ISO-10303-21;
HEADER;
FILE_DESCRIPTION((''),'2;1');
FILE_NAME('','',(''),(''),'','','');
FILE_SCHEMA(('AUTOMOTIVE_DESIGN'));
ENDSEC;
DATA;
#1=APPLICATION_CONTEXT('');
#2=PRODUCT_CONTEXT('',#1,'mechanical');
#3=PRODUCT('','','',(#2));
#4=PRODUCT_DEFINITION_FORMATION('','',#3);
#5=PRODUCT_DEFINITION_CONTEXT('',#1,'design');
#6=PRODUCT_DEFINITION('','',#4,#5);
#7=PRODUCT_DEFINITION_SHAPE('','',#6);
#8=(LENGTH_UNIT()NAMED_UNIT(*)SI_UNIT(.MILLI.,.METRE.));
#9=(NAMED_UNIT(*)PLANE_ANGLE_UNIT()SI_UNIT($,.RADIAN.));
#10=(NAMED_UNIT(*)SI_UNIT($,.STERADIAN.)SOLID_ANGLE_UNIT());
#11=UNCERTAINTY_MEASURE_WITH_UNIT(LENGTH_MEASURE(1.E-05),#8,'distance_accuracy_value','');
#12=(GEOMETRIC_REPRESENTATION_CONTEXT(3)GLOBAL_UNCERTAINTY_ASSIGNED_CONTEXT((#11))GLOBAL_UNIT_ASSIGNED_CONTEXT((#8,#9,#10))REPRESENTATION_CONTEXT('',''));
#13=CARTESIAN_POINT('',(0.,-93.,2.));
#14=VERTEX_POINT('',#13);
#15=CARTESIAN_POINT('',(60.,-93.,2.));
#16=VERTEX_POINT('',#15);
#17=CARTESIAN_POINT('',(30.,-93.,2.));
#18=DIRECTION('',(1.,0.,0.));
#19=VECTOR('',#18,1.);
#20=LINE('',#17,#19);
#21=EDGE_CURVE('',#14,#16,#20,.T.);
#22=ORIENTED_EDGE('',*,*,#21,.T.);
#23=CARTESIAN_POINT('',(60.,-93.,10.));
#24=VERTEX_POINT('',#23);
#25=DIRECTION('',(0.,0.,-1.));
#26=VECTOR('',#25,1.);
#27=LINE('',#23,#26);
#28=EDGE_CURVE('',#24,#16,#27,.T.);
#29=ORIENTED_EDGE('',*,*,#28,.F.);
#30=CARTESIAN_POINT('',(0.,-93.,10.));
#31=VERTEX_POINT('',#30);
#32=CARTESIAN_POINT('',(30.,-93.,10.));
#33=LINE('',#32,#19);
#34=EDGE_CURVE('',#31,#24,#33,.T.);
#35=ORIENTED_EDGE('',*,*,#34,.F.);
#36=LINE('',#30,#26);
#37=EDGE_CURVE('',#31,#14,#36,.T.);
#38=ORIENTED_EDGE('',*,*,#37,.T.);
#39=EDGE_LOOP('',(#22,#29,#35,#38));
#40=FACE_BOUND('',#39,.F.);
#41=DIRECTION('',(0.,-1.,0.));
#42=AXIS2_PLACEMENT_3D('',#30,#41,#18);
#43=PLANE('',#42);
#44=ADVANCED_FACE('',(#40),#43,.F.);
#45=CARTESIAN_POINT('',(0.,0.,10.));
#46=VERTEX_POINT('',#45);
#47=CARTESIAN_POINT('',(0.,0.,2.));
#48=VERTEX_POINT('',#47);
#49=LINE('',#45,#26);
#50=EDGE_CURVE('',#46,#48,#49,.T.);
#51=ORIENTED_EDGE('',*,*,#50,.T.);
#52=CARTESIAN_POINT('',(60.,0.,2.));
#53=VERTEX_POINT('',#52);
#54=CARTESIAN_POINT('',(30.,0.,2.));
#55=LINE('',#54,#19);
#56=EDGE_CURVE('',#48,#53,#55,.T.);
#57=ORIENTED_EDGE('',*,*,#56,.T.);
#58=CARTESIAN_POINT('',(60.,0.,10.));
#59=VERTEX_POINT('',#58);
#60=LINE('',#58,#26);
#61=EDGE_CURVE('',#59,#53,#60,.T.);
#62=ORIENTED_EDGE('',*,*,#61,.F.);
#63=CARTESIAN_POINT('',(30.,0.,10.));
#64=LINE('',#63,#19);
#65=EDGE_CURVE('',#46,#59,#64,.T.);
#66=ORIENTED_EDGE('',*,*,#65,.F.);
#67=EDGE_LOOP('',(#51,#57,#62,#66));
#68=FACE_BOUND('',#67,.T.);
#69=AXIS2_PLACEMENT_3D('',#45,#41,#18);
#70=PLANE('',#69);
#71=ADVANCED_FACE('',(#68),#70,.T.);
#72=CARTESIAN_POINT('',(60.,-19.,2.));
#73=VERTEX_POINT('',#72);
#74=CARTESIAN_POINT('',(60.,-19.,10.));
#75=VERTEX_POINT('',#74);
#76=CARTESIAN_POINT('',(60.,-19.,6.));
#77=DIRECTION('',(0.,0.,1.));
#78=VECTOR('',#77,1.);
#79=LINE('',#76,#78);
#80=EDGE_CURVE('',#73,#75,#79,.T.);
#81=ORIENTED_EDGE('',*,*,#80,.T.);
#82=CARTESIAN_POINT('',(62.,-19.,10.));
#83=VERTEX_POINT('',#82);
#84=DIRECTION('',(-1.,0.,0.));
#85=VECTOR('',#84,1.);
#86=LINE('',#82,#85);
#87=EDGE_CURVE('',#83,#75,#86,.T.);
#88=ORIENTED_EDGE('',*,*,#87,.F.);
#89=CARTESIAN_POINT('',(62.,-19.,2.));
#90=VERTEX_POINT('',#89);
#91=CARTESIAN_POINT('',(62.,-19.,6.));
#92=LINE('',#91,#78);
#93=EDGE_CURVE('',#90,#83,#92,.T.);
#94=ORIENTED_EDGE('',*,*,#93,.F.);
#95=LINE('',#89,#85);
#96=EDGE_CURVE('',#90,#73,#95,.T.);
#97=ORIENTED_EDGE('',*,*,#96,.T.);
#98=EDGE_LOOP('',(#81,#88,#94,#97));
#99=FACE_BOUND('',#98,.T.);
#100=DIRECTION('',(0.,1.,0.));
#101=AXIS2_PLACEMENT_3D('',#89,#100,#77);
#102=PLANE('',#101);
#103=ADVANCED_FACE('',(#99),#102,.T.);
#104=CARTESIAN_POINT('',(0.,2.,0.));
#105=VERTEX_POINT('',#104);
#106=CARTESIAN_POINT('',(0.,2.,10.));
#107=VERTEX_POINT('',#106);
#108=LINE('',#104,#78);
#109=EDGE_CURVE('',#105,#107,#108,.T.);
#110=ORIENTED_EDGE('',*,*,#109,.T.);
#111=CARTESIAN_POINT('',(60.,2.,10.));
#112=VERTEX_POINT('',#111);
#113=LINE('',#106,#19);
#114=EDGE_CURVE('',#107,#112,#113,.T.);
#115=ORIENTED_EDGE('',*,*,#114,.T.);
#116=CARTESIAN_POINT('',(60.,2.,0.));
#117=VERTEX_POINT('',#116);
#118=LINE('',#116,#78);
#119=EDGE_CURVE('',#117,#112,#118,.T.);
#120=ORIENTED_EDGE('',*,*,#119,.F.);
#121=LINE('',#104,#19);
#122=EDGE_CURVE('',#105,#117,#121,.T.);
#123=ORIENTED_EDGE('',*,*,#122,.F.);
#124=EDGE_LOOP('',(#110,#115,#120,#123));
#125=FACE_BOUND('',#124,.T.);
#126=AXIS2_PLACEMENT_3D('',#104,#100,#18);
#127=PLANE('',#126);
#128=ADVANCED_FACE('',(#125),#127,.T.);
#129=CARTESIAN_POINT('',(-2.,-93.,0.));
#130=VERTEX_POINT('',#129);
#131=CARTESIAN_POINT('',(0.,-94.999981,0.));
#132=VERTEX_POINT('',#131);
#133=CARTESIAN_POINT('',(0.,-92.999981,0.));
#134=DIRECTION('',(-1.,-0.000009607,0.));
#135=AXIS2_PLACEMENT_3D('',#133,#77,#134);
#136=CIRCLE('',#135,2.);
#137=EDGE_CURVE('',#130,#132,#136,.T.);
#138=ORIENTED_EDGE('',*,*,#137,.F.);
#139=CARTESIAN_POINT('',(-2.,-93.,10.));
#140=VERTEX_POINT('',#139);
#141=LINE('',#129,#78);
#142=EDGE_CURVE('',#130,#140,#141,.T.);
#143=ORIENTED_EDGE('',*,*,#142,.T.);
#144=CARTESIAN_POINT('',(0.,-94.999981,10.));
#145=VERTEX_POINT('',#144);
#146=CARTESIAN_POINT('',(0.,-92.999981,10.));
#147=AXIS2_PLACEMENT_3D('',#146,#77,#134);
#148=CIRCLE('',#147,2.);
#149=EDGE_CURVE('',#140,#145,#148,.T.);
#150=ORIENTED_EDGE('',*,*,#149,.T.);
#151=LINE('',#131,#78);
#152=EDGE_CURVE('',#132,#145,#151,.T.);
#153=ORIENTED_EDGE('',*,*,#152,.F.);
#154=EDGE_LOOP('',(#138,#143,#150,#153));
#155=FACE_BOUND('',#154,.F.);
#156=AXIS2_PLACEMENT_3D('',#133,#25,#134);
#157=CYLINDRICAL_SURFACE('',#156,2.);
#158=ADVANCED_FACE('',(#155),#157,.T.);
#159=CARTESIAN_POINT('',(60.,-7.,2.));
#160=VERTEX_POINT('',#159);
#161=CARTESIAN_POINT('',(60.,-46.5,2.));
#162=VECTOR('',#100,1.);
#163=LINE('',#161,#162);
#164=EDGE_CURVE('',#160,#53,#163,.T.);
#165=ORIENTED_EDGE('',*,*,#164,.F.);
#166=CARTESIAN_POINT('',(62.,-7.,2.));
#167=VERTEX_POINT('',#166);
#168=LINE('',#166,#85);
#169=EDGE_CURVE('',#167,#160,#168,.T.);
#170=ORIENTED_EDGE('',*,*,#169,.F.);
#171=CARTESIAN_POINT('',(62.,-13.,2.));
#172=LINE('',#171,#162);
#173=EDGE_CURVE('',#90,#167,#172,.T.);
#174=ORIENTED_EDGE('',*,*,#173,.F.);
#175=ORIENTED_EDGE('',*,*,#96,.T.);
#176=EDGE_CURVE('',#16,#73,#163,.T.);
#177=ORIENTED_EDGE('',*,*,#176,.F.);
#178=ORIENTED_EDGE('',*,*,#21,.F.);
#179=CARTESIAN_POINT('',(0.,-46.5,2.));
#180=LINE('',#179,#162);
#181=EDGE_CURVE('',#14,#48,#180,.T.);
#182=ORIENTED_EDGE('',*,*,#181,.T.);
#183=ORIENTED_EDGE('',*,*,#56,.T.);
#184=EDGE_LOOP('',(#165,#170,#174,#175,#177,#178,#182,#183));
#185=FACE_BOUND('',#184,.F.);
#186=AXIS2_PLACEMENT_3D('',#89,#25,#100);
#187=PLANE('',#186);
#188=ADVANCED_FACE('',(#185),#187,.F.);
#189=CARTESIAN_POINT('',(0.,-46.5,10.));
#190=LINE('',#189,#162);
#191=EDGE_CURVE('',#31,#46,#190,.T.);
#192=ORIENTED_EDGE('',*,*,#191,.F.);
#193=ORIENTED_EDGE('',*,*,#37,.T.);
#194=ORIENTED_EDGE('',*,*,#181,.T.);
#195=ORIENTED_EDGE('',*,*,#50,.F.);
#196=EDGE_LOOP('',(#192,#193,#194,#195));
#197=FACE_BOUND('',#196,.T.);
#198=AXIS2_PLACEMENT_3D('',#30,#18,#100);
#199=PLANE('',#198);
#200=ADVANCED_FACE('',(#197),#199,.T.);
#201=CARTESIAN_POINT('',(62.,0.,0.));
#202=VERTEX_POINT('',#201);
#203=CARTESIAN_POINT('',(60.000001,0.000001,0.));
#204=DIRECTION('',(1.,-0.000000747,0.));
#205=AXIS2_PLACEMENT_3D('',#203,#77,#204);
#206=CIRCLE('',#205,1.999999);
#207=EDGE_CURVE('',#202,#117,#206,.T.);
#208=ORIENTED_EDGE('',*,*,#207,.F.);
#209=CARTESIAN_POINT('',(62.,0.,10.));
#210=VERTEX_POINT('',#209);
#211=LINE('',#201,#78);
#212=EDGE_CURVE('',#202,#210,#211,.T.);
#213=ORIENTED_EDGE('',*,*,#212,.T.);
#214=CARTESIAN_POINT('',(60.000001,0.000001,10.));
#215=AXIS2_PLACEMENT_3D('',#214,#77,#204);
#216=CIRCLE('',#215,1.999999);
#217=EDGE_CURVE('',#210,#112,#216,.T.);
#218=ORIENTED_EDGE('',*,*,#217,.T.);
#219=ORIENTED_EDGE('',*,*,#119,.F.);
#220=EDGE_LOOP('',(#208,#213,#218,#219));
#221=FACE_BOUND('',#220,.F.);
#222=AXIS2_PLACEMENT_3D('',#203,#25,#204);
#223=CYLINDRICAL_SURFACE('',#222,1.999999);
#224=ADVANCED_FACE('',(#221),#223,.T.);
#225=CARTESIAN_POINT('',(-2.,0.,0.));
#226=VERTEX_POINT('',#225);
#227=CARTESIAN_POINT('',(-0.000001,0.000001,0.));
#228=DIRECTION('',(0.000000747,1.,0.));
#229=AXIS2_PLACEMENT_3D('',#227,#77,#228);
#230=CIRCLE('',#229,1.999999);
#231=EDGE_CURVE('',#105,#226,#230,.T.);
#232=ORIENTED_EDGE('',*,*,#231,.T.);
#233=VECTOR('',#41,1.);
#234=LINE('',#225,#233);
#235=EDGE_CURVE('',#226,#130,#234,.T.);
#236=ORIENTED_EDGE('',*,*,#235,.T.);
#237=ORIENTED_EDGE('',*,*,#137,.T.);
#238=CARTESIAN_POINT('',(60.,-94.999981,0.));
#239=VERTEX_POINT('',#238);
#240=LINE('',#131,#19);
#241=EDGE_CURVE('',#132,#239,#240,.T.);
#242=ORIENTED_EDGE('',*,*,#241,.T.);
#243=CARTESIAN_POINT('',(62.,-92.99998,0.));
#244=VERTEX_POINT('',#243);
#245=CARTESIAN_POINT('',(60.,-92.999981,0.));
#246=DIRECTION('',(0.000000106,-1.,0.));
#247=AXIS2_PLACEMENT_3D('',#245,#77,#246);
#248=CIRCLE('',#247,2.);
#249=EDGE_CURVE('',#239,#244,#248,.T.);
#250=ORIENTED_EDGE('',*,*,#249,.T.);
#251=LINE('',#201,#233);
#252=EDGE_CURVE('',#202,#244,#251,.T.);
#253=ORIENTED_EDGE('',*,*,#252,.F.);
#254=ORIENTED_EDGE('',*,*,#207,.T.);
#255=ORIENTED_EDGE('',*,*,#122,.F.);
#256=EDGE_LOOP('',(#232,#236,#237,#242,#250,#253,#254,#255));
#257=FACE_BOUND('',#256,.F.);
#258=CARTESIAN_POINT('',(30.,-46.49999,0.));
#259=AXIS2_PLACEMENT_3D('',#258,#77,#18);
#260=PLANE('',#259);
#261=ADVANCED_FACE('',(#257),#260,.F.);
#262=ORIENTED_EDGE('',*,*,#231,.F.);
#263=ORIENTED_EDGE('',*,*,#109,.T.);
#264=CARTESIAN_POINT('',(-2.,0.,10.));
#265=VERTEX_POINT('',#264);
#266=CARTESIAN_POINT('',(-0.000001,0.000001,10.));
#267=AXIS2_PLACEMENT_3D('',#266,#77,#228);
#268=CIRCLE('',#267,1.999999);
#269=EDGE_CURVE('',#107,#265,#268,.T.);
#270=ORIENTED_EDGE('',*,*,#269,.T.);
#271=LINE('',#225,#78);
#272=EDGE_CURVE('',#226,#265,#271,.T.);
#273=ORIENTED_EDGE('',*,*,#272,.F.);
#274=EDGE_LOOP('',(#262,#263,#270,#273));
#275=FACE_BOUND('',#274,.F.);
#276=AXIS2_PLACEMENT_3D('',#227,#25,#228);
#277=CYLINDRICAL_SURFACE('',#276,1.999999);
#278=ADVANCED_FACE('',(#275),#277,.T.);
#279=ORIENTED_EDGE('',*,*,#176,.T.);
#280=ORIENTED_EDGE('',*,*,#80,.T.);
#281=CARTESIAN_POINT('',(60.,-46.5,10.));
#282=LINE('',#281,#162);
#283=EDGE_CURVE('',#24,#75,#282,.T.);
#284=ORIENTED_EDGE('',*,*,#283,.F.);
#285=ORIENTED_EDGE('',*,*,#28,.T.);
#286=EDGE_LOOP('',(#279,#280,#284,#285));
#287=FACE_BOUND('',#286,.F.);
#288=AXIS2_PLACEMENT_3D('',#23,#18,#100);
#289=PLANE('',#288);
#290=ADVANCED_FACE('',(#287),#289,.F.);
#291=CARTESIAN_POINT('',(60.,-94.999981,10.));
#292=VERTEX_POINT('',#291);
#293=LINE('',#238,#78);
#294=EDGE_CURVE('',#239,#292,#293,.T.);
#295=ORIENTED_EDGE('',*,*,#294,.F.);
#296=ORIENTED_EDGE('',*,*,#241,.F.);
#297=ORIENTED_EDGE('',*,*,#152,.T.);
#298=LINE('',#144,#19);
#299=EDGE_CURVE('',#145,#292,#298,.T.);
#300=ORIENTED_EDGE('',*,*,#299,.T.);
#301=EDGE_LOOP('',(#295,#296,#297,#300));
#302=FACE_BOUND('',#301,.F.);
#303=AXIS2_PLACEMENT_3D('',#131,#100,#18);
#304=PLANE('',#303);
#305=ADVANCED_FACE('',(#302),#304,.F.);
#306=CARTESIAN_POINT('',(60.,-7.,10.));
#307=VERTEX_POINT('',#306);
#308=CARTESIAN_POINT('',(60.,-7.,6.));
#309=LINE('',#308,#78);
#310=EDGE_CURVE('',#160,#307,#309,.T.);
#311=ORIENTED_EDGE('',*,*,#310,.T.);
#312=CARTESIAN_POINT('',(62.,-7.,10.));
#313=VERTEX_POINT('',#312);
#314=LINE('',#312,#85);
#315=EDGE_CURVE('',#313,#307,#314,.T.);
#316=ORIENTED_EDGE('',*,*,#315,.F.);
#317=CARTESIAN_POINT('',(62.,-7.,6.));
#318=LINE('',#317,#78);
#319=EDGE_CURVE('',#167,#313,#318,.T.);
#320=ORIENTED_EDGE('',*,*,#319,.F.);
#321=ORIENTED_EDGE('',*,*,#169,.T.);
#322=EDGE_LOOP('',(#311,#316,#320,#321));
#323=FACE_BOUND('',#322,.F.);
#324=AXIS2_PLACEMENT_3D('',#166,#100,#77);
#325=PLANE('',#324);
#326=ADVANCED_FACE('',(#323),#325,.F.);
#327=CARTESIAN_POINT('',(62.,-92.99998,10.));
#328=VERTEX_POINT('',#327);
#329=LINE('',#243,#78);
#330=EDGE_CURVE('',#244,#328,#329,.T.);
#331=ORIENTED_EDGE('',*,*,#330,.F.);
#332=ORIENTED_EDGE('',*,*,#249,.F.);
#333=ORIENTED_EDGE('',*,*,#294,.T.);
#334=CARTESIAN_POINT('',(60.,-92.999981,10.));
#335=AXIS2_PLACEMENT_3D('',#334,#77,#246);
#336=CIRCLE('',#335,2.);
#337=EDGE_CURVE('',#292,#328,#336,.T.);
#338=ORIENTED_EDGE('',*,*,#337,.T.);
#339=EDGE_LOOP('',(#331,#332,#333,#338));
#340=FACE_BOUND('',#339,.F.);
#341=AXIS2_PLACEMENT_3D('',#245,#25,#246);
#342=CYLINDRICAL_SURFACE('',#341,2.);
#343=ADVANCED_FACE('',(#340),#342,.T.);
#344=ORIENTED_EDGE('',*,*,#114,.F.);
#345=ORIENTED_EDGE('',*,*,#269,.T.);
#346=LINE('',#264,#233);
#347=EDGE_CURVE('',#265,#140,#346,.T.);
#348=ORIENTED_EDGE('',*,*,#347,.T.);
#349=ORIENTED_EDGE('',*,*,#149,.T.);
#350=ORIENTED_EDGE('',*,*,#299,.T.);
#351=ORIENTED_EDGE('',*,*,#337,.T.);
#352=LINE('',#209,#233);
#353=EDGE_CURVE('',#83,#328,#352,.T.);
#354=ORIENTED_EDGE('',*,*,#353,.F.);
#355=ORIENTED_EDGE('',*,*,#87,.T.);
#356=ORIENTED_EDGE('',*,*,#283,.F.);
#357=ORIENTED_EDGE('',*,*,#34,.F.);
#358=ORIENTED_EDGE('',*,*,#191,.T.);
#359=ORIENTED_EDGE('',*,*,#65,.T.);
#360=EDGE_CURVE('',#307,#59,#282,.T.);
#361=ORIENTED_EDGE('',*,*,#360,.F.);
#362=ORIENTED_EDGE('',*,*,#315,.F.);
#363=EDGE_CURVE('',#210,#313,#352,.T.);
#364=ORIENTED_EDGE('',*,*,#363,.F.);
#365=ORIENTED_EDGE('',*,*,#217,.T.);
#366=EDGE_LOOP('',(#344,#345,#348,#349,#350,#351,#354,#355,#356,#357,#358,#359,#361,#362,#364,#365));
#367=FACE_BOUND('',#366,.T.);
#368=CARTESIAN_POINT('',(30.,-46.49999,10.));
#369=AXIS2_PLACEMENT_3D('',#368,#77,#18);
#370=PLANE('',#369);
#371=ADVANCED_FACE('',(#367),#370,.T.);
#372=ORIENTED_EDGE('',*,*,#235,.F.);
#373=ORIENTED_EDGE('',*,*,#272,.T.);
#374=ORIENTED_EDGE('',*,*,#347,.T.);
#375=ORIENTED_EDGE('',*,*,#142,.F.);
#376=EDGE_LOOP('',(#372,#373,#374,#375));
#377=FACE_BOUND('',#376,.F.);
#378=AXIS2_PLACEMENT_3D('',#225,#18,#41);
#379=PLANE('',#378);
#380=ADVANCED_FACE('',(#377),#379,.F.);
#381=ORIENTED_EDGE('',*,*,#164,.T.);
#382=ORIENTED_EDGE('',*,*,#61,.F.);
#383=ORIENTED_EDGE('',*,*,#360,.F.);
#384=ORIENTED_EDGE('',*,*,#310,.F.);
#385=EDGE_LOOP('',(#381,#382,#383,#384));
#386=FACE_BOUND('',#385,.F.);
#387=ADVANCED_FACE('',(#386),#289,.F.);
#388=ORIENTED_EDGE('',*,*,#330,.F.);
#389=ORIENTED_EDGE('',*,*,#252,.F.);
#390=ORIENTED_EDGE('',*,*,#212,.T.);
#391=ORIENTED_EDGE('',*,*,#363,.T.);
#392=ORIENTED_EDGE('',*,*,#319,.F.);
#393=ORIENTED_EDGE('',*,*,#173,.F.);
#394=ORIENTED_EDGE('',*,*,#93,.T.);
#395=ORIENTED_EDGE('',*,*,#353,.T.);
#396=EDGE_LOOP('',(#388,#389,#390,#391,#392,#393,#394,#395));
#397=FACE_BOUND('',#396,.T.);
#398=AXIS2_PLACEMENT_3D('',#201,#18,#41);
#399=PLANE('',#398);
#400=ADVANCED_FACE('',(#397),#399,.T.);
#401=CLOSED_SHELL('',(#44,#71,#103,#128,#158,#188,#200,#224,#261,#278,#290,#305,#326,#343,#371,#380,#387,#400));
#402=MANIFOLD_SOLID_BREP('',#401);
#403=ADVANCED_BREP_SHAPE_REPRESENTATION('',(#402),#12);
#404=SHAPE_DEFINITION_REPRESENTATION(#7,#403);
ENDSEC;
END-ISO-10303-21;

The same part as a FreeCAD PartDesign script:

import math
import FreeCAD as App
import Part
import Sketcher
from FreeCAD import Vector
Q = App.Units.Quantity

doc = App.newDocument("Part")
body = doc.addObject("PartDesign::Body", "Body")

# Sketch on XY plane
sketch1 = body.newObject("Sketcher::SketchObject", "Sketch")
sketch1.AttachmentSupport = (doc.getObject("XY_Plane"), [""])
sketch1.MapMode = "FlatFace"
sketch1.addGeometry(Part.ArcOfCircle(Part.Circle(Vector(0, 0, 0), Vector(0, 0, 1), 2), math.radians(90), math.radians(180)), False)
sketch1.addGeometry(Part.LineSegment(Vector(-2, 0, 0), Vector(-2, -93, 0)), False)
sketch1.addGeometry(Part.ArcOfCircle(Part.Circle(Vector(0, -93, 0), Vector(0, 0, 1), 2), math.radians(-180), math.radians(-90)), False)
sketch1.addGeometry(Part.LineSegment(Vector(0, -95, 0), Vector(60, -95, 0)), False)
sketch1.addGeometry(Part.ArcOfCircle(Part.Circle(Vector(60, -93, 0), Vector(0, 0, 1), 2), math.radians(-90), math.radians(0)), False)
sketch1.addGeometry(Part.LineSegment(Vector(62, -93, 0), Vector(62, 0, 0)), False)
sketch1.addGeometry(Part.ArcOfCircle(Part.Circle(Vector(60, 0, 0), Vector(0, 0, 1), 2), math.radians(0), math.radians(90)), False)
sketch1.addGeometry(Part.LineSegment(Vector(60, 2, 0), Vector(0, 2, 0)), False)
sketch1.addConstraint(Sketcher.Constraint("Tangent", 0, 2, 1, 1))
sketch1.addConstraint(Sketcher.Constraint("Coincident", 1, 2, 2, 1))
sketch1.addConstraint(Sketcher.Constraint("Tangent", 2, 2, 3, 1))
sketch1.addConstraint(Sketcher.Constraint("Tangent", 3, 2, 4, 1))
sketch1.addConstraint(Sketcher.Constraint("Tangent", 4, 2, 5, 1))
sketch1.addConstraint(Sketcher.Constraint("Tangent", 5, 2, 6, 1))
sketch1.addConstraint(Sketcher.Constraint("Tangent", 6, 2, 7, 1))
sketch1.addConstraint(Sketcher.Constraint("Tangent", 7, 2, 0, 1))
sketch1.addConstraint(Sketcher.Constraint("Vertical", 1))
sketch1.addConstraint(Sketcher.Constraint("Horizontal", 3))
sketch1.addConstraint(Sketcher.Constraint("Vertical", 5))
sketch1.addConstraint(Sketcher.Constraint("Horizontal", 7))
sketch1.addConstraint(Sketcher.Constraint("Coincident", 0, 3, -1, 1))
sketch1.addConstraint(Sketcher.Constraint("Equal", 0, 2))
sketch1.addConstraint(Sketcher.Constraint("Equal", 2, 4))
sketch1.addConstraint(Sketcher.Constraint("Equal", 4, 6))
sketch1.addConstraint(Sketcher.Constraint("Radius", 0, Q("1.999999 mm")))
sketch1.addConstraint(Sketcher.Constraint("DistanceX", 3, 1, 3, 2, Q("60 mm")))
sketch1.addConstraint(Sketcher.Constraint("DistanceY", 1, 2, 1, 1, Q("93 mm")))
sketch1.addConstraint(Sketcher.Constraint("DistanceY", 5, 1, 5, 2, Q("92.99998 mm")))
pad1 = body.newObject("PartDesign::Pad", "Pad")
pad1.Profile = sketch1
pad1.Length = 10

# Sketch on XY plane
sketch2 = body.newObject("Sketcher::SketchObject", "Sketch001")
sketch2.AttachmentSupport = (doc.getObject("XY_Plane"), [""])
sketch2.MapMode = "FlatFace"
sketch2.AttachmentOffset = App.Placement(Vector(0, 0, 10), App.Rotation())
sketch2.addGeometry(Part.LineSegment(Vector(0, 0, 0), Vector(0, -93, 0)), False)
sketch2.addGeometry(Part.LineSegment(Vector(0, -93, 0), Vector(60, -93, 0)), False)
sketch2.addGeometry(Part.LineSegment(Vector(60, -93, 0), Vector(60, 0, 0)), False)
sketch2.addGeometry(Part.LineSegment(Vector(60, 0, 0), Vector(0, 0, 0)), False)
sketch2.addConstraint(Sketcher.Constraint("Coincident", 0, 2, 1, 1))
sketch2.addConstraint(Sketcher.Constraint("Coincident", 1, 2, 2, 1))
sketch2.addConstraint(Sketcher.Constraint("Coincident", 2, 2, 3, 1))
sketch2.addConstraint(Sketcher.Constraint("Coincident", 3, 2, 0, 1))
sketch2.addConstraint(Sketcher.Constraint("Vertical", 0))
sketch2.addConstraint(Sketcher.Constraint("Horizontal", 1))
sketch2.addConstraint(Sketcher.Constraint("Vertical", 2))
sketch2.addConstraint(Sketcher.Constraint("Horizontal", 3))
sketch2.addConstraint(Sketcher.Constraint("Coincident", 3, 2, -1, 1))
sketch2.addConstraint(Sketcher.Constraint("DistanceX", 1, 1, 1, 2, Q("60 mm")))
sketch2.addConstraint(Sketcher.Constraint("DistanceY", 0, 2, 0, 1, Q("93 mm")))
pocket1 = body.newObject("PartDesign::Pocket", "Pocket")
pocket1.Profile = sketch2
pocket1.Length = 8

# Sketch on YZ plane
sketch3 = body.newObject("Sketcher::SketchObject", "Sketch002")
sketch3.AttachmentSupport = (doc.getObject("YZ_Plane"), [""])
sketch3.MapMode = "FlatFace"
sketch3.AttachmentOffset = App.Placement(Vector(0, 0, 62), App.Rotation())
sketch3.addGeometry(Part.LineSegment(Vector(-19, 10, 0), Vector(-19, 2, 0)), False)
sketch3.addGeometry(Part.LineSegment(Vector(-19, 2, 0), Vector(-7, 2, 0)), False)
sketch3.addGeometry(Part.LineSegment(Vector(-7, 2, 0), Vector(-7, 10, 0)), False)
sketch3.addGeometry(Part.LineSegment(Vector(-7, 10, 0), Vector(-19, 10, 0)), False)
sketch3.addConstraint(Sketcher.Constraint("Coincident", 0, 2, 1, 1))
sketch3.addConstraint(Sketcher.Constraint("Coincident", 1, 2, 2, 1))
sketch3.addConstraint(Sketcher.Constraint("Coincident", 2, 2, 3, 1))
sketch3.addConstraint(Sketcher.Constraint("Coincident", 3, 2, 0, 1))
sketch3.addConstraint(Sketcher.Constraint("Vertical", 0))
sketch3.addConstraint(Sketcher.Constraint("Horizontal", 1))
sketch3.addConstraint(Sketcher.Constraint("Vertical", 2))
sketch3.addConstraint(Sketcher.Constraint("Horizontal", 3))
sketch3.addConstraint(Sketcher.Constraint("DistanceX", 1, 1, 1, 2, Q("12 mm")))
sketch3.addConstraint(Sketcher.Constraint("DistanceY", 0, 2, 0, 1, Q("8 mm")))
sketch3.addConstraint(Sketcher.Constraint("DistanceX", 0, 2, -1, 1, Q("19 mm")))
sketch3.addConstraint(Sketcher.Constraint("DistanceY", -1, 1, 0, 2, Q("2 mm")))
pocket2 = body.newObject("PartDesign::Pocket", "Pocket001")
pocket2.Profile = sketch3
pocket2.Length = 2

doc.recompute()
